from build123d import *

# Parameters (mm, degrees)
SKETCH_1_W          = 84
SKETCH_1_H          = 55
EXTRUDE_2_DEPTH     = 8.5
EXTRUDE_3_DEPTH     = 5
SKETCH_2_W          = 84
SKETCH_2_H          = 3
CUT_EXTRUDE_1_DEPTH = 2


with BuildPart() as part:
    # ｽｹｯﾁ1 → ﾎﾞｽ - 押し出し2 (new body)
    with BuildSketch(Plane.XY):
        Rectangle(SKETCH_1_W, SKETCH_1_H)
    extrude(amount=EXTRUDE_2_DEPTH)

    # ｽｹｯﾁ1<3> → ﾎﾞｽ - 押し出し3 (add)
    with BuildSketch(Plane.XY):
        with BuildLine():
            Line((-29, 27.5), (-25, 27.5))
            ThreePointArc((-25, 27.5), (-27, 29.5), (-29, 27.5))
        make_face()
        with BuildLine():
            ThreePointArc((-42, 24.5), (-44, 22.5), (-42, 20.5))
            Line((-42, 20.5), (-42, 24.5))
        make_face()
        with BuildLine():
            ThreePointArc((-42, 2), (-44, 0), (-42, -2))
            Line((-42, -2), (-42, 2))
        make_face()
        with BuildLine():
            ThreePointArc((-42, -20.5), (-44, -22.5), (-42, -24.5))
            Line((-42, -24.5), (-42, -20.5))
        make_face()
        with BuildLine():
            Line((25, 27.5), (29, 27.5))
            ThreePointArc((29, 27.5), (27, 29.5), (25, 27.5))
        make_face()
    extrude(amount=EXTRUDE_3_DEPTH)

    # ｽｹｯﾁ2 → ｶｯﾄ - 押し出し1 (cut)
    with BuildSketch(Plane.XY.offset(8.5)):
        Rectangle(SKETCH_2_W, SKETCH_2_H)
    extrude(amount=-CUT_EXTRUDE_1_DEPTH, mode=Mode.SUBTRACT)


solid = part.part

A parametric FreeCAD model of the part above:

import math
import FreeCAD as App
import Part
import Sketcher
Q = App.Units.Quantity


def add_polygon(sketch, points):
    """Adds a closed chain of lines whose ends are joined by coincident constraints."""
    first, n = sketch.GeometryCount, len(points)
    for a, b in zip(points, points[1:] + points[:1]):
        sketch.addGeometry(Part.LineSegment(App.Vector(*a, 0), App.Vector(*b, 0)), False)
    for i in range(n):
        sketch.addConstraint(Sketcher.Constraint("Coincident", first + i, 2, first + (i + 1) % n, 1))

doc = App.newDocument("Part")
body = doc.addObject("PartDesign::Body", "Body")

# Sketch on XY plane
sketch1 = body.newObject("Sketcher::SketchObject", "Sketch")
sketch1.AttachmentSupport = (doc.getObject("XY_Plane"), [""])
sketch1.MapMode = "FlatFace"
add_polygon(sketch1, [(-42, 27.5), (-42, -27.5), (42, -27.5), (42, 27.5)])  # lines 0-3
sketch1.addConstraint([
    Sketcher.Constraint("Vertical", 0),
    Sketcher.Constraint("Horizontal", 1),
    Sketcher.Constraint("Vertical", 2),
    Sketcher.Constraint("Horizontal", 3),
    Sketcher.Constraint("Symmetric", 0, 2, 2, 2, -1, 1),
    Sketcher.Constraint("DistanceX", 1, 1, 1, 2, Q("84 mm")),
    Sketcher.Constraint("DistanceY", 0, 2, 0, 1, Q("55 mm")),
])
pad1 = body.newObject("PartDesign::Pad", "Pad")
pad1.Profile = sketch1
pad1.Length = 8.5

# Sketch on XY plane
sketch2 = body.newObject("Sketcher::SketchObject", "Sketch001")
sketch2.AttachmentSupport = (doc.getObject("XY_Plane"), [""])
sketch2.MapMode = "FlatFace"
sketch2.addGeometry([
    Part.LineSegment(App.Vector(-29, 27.5, 0), App.Vector(-25, 27.5, 0)),  # 0
    Part.ArcOfCircle(Part.Circle(App.Vector(-27, 27.5, 0), App.Vector(0, 0, 1), 2), math.radians(0), math.radians(180)),  # 1
    Part.ArcOfCircle(Part.Circle(App.Vector(-42, 22.5, 0), App.Vector(0, 0, 1), 2), math.radians(90), math.radians(270)),  # 2
    Part.LineSegment(App.Vector(-42, 20.5, 0), App.Vector(-42, 24.5, 0)),  # 3
    Part.ArcOfCircle(Part.Circle(App.Vector(-42, 0, 0), App.Vector(0, 0, 1), 2), math.radians(90), math.radians(270)),  # 4
    Part.LineSegment(App.Vector(-42, -2, 0), App.Vector(-42, 2, 0)),  # 5
    Part.ArcOfCircle(Part.Circle(App.Vector(-42, -22.5, 0), App.Vector(0, 0, 1), 2), math.radians(90), math.radians(270)),  # 6
    Part.LineSegment(App.Vector(-42, -24.5, 0), App.Vector(-42, -20.5, 0)),  # 7
    Part.LineSegment(App.Vector(25, 27.5, 0), App.Vector(29, 27.5, 0)),  # 8
    Part.ArcOfCircle(Part.Circle(App.Vector(27, 27.5, 0), App.Vector(0, 0, 1), 2), math.radians(0), math.radians(180)),  # 9
], False)
sketch2.addConstraint([
    Sketcher.Constraint("Coincident", 0, 1, 1, 2),
    Sketcher.Constraint("Coincident", 1, 1, 0, 2),
    Sketcher.Constraint("Coincident", 2, 1, 3, 2),
    Sketcher.Constraint("Coincident", 3, 1, 2, 2),
    Sketcher.Constraint("Coincident", 4, 1, 5, 2),
    Sketcher.Constraint("Coincident", 5, 1, 4, 2),
    Sketcher.Constraint("Coincident", 6, 1, 7, 2),
    Sketcher.Constraint("Coincident", 7, 1, 6, 2),
    Sketcher.Constraint("Coincident", 8, 1, 9, 2),
    Sketcher.Constraint("Coincident", 9, 1, 8, 2),
    Sketcher.Constraint("Horizontal", 0),
    Sketcher.Constraint("Vertical", 3),
    Sketcher.Constraint("Vertical", 5),
    Sketcher.Constraint("Vertical", 7),
    Sketcher.Constraint("Horizontal", 8),
    Sketcher.Constraint("Equal", 1, 2),
    Sketcher.Constraint("Equal", 2, 4),
    Sketcher.Constraint("Equal", 4, 6),
    Sketcher.Constraint("Equal", 6, 9),
    Sketcher.Constraint("Symmetric", 1, 3, 9, 3, -2),
    Sketcher.Constraint("Symmetric", 2, 3, 6, 3, -1),
    Sketcher.Constraint("PointOnObject", 4, 3, -1),
    Sketcher.Constraint("Horizontal", 9, 3, 0, 1),
    Sketcher.Constraint("Horizontal", 1, 1, 8, 1),
    Sketcher.Constraint("Vertical", 2, 3, 4, 3),
    Sketcher.Constraint("Vertical", 6, 3, 2, 1),
    Sketcher.Constraint("Vertical", 3, 1, 4, 1),
    Sketcher.Constraint("Vertical", 5, 1, 6, 1),
    Sketcher.Constraint("Radius", 1, Q("2 mm")),
    Sketcher.Constraint("DistanceX", 1, 3, -1, 1, Q("27 mm")),
    Sketcher.Constraint("DistanceX", 2, 3, -1, 1, Q("42 mm")),
    Sketcher.Constraint("DistanceY", 2, 3, 1, 3, Q("5 mm")),
    Sketcher.Constraint("DistanceY", 6, 3, 2, 3, Q("45 mm")),
])
pad2 = body.newObject("PartDesign::Pad", "Pad001")
pad2.Profile = sketch2
pad2.Length = 5

# Sketch on XY plane
sketch3 = body.newObject("Sketcher::SketchObject", "Sketch002")
sketch3.AttachmentSupport = (doc.getObject("XY_Plane"), [""])
sketch3.MapMode = "FlatFace"
sketch3.AttachmentOffset = App.Placement(App.Vector(0, 0, 8.5), App.Rotation())
add_polygon(sketch3, [(-42, 1.5), (-42, -1.5), (42, -1.5), (42, 1.5)])  # lines 0-3
sketch3.addConstraint([
    Sketcher.Constraint("Vertical", 0),
    Sketcher.Constraint("Horizontal", 1),
    Sketcher.Constraint("Vertical", 2),
    Sketcher.Constraint("Horizontal", 3),
    Sketcher.Constraint("Symmetric", 0, 2, 2, 2, -1, 1),
    Sketcher.Constraint("DistanceX", 1, 1, 1, 2, Q("84 mm")),
    Sketcher.Constraint("DistanceY", 0, 2, 0, 1, Q("3 mm")),
])
pocket1 = body.newObject("PartDesign::Pocket", "Pocket")
pocket1.Profile = sketch3
pocket1.Length = 2

doc.recompute()
